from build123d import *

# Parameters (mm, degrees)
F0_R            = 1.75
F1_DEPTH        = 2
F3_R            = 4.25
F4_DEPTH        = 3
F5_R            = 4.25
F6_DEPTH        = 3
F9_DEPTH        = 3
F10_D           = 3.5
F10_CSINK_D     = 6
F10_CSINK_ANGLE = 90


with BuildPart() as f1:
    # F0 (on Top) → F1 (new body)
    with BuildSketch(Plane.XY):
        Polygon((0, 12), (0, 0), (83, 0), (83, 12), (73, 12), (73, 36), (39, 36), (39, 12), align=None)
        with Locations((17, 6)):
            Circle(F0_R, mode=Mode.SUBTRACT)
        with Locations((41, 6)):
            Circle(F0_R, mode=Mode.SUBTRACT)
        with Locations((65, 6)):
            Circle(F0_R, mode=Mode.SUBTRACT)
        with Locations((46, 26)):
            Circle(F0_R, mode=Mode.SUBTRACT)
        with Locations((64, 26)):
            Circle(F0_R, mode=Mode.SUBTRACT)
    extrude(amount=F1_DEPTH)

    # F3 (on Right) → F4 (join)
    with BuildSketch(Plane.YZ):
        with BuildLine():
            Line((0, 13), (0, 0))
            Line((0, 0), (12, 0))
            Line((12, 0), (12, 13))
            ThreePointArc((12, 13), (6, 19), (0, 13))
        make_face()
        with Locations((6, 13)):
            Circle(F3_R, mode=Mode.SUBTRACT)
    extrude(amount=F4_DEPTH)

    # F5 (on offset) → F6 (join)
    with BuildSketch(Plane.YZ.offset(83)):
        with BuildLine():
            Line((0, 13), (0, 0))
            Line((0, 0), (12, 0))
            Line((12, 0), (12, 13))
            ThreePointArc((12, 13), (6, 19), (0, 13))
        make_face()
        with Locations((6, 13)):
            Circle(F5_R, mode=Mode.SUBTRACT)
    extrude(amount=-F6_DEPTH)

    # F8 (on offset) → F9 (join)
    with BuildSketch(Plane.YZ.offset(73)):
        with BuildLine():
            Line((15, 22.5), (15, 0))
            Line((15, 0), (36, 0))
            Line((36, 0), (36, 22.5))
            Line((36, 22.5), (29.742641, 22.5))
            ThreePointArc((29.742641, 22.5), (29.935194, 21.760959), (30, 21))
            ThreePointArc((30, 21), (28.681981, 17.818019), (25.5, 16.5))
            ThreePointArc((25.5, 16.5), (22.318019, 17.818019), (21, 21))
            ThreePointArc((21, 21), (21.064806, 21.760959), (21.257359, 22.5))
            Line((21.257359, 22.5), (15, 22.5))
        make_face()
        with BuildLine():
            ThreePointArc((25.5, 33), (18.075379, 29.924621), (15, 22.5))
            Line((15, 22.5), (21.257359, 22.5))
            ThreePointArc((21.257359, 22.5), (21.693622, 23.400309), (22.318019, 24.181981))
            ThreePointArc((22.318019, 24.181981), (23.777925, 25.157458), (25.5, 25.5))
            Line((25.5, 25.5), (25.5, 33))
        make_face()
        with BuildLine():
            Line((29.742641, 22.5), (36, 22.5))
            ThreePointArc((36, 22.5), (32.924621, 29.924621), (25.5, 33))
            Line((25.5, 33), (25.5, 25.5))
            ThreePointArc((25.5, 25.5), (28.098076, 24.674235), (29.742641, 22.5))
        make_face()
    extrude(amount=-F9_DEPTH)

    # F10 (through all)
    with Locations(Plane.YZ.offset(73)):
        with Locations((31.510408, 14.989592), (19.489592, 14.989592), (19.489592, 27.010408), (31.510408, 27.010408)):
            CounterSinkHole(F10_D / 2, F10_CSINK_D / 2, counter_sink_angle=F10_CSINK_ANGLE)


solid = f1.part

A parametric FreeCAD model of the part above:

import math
import FreeCAD as App
import Part
import Sketcher

V = App.Vector
Q = App.Units.Quantity

doc = App.newDocument("Part")
body = doc.addObject("PartDesign::Body", "Body")

sketch1 = body.newObject("Sketcher::SketchObject", "Sketch")
sketch1.AttachmentSupport = (doc.getObject("XY_Plane"), [""])
sketch1.MapMode = "FlatFace"
sketch1.addGeometry(Part.LineSegment(V(0, 12, 0), V(0, 0, 0)), False)
sketch1.addGeometry(Part.LineSegment(V(0, 0, 0), V(83, 0, 0)), False)
sketch1.addGeometry(Part.LineSegment(V(83, 0, 0), V(83, 12, 0)), False)
sketch1.addGeometry(Part.LineSegment(V(83, 12, 0), V(73, 12, 0)), False)
sketch1.addGeometry(Part.LineSegment(V(73, 12, 0), V(73, 36, 0)), False)
sketch1.addGeometry(Part.LineSegment(V(73, 36, 0), V(39, 36, 0)), False)
sketch1.addGeometry(Part.LineSegment(V(39, 36, 0), V(39, 12, 0)), False)
sketch1.addGeometry(Part.LineSegment(V(39, 12, 0), V(0, 12, 0)), False)
sketch1.addGeometry(Part.Circle(V(17, 6, 0), V(0, 0, 1), 1.8), False)
sketch1.addGeometry(Part.Circle(V(41, 6, 0), V(0, 0, 1), 1.8), False)
sketch1.addGeometry(Part.Circle(V(65, 6, 0), V(0, 0, 1), 1.8), False)
sketch1.addGeometry(Part.Circle(V(46, 26, 0), V(0, 0, 1), 1.8), False)
sketch1.addGeometry(Part.Circle(V(64, 26, 0), V(0, 0, 1), 1.8), False)
sketch1.addConstraint(Sketcher.Constraint("Coincident", 0, 2, 1, 1))
sketch1.addConstraint(Sketcher.Constraint("Coincident", 1, 2, 2, 1))
sketch1.addConstraint(Sketcher.Constraint("Coincident", 2, 2, 3, 1))
sketch1.addConstraint(Sketcher.Constraint("Coincident", 3, 2, 4, 1))
sketch1.addConstraint(Sketcher.Constraint("Coincident", 4, 2, 5, 1))
sketch1.addConstraint(Sketcher.Constraint("Coincident", 5, 2, 6, 1))
sketch1.addConstraint(Sketcher.Constraint("Coincident", 6, 2, 7, 1))
sketch1.addConstraint(Sketcher.Constraint("Coincident", 7, 2, 0, 1))
sketch1.addConstraint(Sketcher.Constraint("Vertical", 0))
sketch1.addConstraint(Sketcher.Constraint("Horizontal", 1))
sketch1.addConstraint(Sketcher.Constraint("Vertical", 2))
sketch1.addConstraint(Sketcher.Constraint("Horizontal", 3))
sketch1.addConstraint(Sketcher.Constraint("Vertical", 4))
sketch1.addConstraint(Sketcher.Constraint("Horizontal", 5))
sketch1.addConstraint(Sketcher.Constraint("Vertical", 6))
sketch1.addConstraint(Sketcher.Constraint("Horizontal", 7))
sketch1.addConstraint(Sketcher.Constraint("Coincident", 0, 2, -1, 1))
sketch1.addConstraint(Sketcher.Constraint("Equal", 8, 9))
sketch1.addConstraint(Sketcher.Constraint("Equal", 9, 10))
sketch1.addConstraint(Sketcher.Constraint("Equal", 10, 11))
sketch1.addConstraint(Sketcher.Constraint("Equal", 11, 12))
sketch1.addConstraint(Sketcher.Constraint("Horizontal", 8, 3, 9, 3))
sketch1.addConstraint(Sketcher.Constraint("Horizontal", 9, 3, 10, 3))
sketch1.addConstraint(Sketcher.Constraint("Horizontal", 11, 3, 12, 3))
sketch1.addConstraint(Sketcher.Constraint("Horizontal", 3, 2, 6, 2))
sketch1.addConstraint(Sketcher.Constraint("Diameter", 8, Q("3.5 mm")))
sketch1.addConstraint(Sketcher.Constraint("DistanceX", 1, 1, 1, 2, Q("83 mm")))
sketch1.addConstraint(Sketcher.Constraint("DistanceX", 3, 2, 3, 1, Q("10 mm")))
sketch1.addConstraint(Sketcher.Constraint("DistanceX", 5, 2, 5, 1, Q("34 mm")))
sketch1.addConstraint(Sketcher.Constraint("DistanceY", 0, 2, 0, 1, Q("12 mm")))
sketch1.addConstraint(Sketcher.Constraint("DistanceY", 4, 1, 4, 2, Q("24 mm")))
sketch1.addConstraint(Sketcher.Constraint("DistanceX", -1, 1, 8, 3, Q("17 mm")))
sketch1.addConstraint(Sketcher.Constraint("DistanceY", -1, 1, 8, 3, Q("6 mm")))
sketch1.addConstraint(Sketcher.Constraint("DistanceX", -1, 1, 9, 3, Q("41 mm")))
sketch1.addConstraint(Sketcher.Constraint("DistanceX", -1, 1, 10, 3, Q("65 mm")))
sketch1.addConstraint(Sketcher.Constraint("DistanceX", -1, 1, 11, 3, Q("46 mm")))
sketch1.addConstraint(Sketcher.Constraint("DistanceY", -1, 1, 11, 3, Q("26 mm")))
sketch1.addConstraint(Sketcher.Constraint("DistanceX", -1, 1, 12, 3, Q("64 mm")))
pad1 = body.newObject("PartDesign::Pad", "Pad")
pad1.Profile = sketch1
pad1.Length = 2

sketch2 = body.newObject("Sketcher::SketchObject", "Sketch001")
sketch2.AttachmentSupport = (doc.getObject("YZ_Plane"), [""])
sketch2.MapMode = "FlatFace"
sketch2.addGeometry(Part.LineSegment(V(0, 13, 0), V(0, 0, 0)), False)
sketch2.addGeometry(Part.LineSegment(V(0, 0, 0), V(12, 0, 0)), False)
sketch2.addGeometry(Part.LineSegment(V(12, 0, 0), V(12, 13, 0)), False)
sketch2.addGeometry(Part.ArcOfCircle(Part.Circle(V(6, 13, 0), V(0, 0, 1), 6), math.radians(0), math.radians(180)), False)
sketch2.addGeometry(Part.Circle(V(6, 13, 0), V(0, 0, 1), 4.2), False)
sketch2.addConstraint(Sketcher.Constraint("Coincident", 0, 2, 1, 1))
sketch2.addConstraint(Sketcher.Constraint("Coincident", 1, 2, 2, 1))
sketch2.addConstraint(Sketcher.Constraint("Tangent", 2, 2, 3, 1))
sketch2.addConstraint(Sketcher.Constraint("Tangent", 3, 2, 0, 1))
sketch2.addConstraint(Sketcher.Constraint("Vertical", 0))
sketch2.addConstraint(Sketcher.Constraint("Horizontal", 1))
sketch2.addConstraint(Sketcher.Constraint("Vertical", 2))
sketch2.addConstraint(Sketcher.Constraint("Coincident", 0, 2, -1, 1))
sketch2.addConstraint(Sketcher.Constraint("Coincident", 4, 3, 3, 3))
sketch2.addConstraint(Sketcher.Constraint("Radius", 3, Q("6 mm")))
sketch2.addConstraint(Sketcher.Constraint("Diameter", 4, Q("8.5 mm")))
sketch2.addConstraint(Sketcher.Constraint("DistanceY", 0, 2, 0, 1, Q("13 mm")))
pad2 = body.newObject("PartDesign::Pad", "Pad001")
pad2.Profile = sketch2
pad2.Length = 3

sketch3 = body.newObject("Sketcher::SketchObject", "Sketch002")
sketch3.AttachmentSupport = (doc.getObject("YZ_Plane"), [""])
sketch3.MapMode = "FlatFace"
sketch3.AttachmentOffset = App.Placement(V(0, 0, 83), App.Rotation())
sketch3.addGeometry(Part.LineSegment(V(0, 13, 0), V(0, 0, 0)), False)
sketch3.addGeometry(Part.LineSegment(V(0, 0, 0), V(12, 0, 0)), False)
sketch3.addGeometry(Part.LineSegment(V(12, 0, 0), V(12, 13, 0)), False)
sketch3.addGeometry(Part.ArcOfCircle(Part.Circle(V(6, 13, 0), V(0, 0, 1), 6), math.radians(0), math.radians(180)), False)
sketch3.addGeometry(Part.Circle(V(6, 13, 0), V(0, 0, 1), 4.2), False)
sketch3.addConstraint(Sketcher.Constraint("Coincident", 0, 2, 1, 1))
sketch3.addConstraint(Sketcher.Constraint("Coincident", 1, 2, 2, 1))
sketch3.addConstraint(Sketcher.Constraint("Tangent", 2, 2, 3, 1))
sketch3.addConstraint(Sketcher.Constraint("Tangent", 3, 2, 0, 1))
sketch3.addConstraint(Sketcher.Constraint("Vertical", 0))
sketch3.addConstraint(Sketcher.Constraint("Horizontal", 1))
sketch3.addConstraint(Sketcher.Constraint("Vertical", 2))
sketch3.addConstraint(Sketcher.Constraint("Coincident", 0, 2, -1, 1))
sketch3.addConstraint(Sketcher.Constraint("Coincident", 4, 3, 3, 3))
sketch3.addConstraint(Sketcher.Constraint("Radius", 3, Q("6 mm")))
sketch3.addConstraint(Sketcher.Constraint("Diameter", 4, Q("8.5 mm")))
sketch3.addConstraint(Sketcher.Constraint("DistanceY", 0, 2, 0, 1, Q("13 mm")))
pad3 = body.newObject("PartDesign::Pad", "Pad002")
pad3.Profile = sketch3
pad3.Length = 3
pad3.Reversed = True

sketch4 = body.newObject("Sketcher::SketchObject", "Sketch003")
sketch4.AttachmentSupport = (doc.getObject("YZ_Plane"), [""])
sketch4.MapMode = "FlatFace"
sketch4.AttachmentOffset = App.Placement(V(0, 0, 73), App.Rotation())
sketch4.addGeometry(Part.LineSegment(V(15, 22.5, 0), V(15, 0, 0)), False)
sketch4.addGeometry(Part.LineSegment(V(15, 0, 0), V(36, 0, 0)), False)
sketch4.addGeometry(Part.LineSegment(V(36, 0, 0), V(36, 22.5, 0)), False)
sketch4.addGeometry(Part.ArcOfCircle(Part.Circle(V(25.499999, 22.499999, 0), V(0, 0, 1), 10.500001), math.radians(0.000004), math.radians(89.999996)), False)
sketch4.addGeometry(Part.ArcOfCircle(Part.Circle(V(25.500001, 22.499999, 0), V(0, 0, 1), 10.500001), math.radians(90.000004), math.radians(179.999996)), False)
sketch4.addGeometry(Part.ArcOfCircle(Part.Circle(V(25.500023, 21.000005, 0), V(0, 0, 1), 4.499977), math.radians(-0.000062), math.radians(19.47126)), False)
sketch4.addGeometry(Part.ArcOfCircle(Part.Circle(V(25.500002, 20.999998, 0), V(0, 0, 1), 4.499998), math.radians(-90.000021), math.radians(0.000021)), False)
sketch4.addGeometry(Part.ArcOfCircle(Part.Circle(V(25.499998, 20.999998, 0), V(0, 0, 1), 4.499998), math.radians(179.999979), math.radians(270.000021)), False)
sketch4.addGeometry(Part.ArcOfCircle(Part.Circle(V(25.499977, 21.000005, 0), V(0, 0, 1), 4.499977), math.radians(160.52874), math.radians(180.000062)), False)
sketch4.addGeometry(Part.ArcOfCircle(Part.Circle(V(25.50003, 20.999982, 0), V(0, 0, 1), 4.500034), math.radians(135.000108), math.radians(160.528695)), False)
sketch4.addGeometry(Part.ArcOfCircle(Part.Circle(V(25.500001, 20.999995, 0), V(0, 0, 1), 4.500005), math.radians(90.000016), math.radians(134.999963)), False)
sketch4.addGeometry(Part.ArcOfCircle(Part.Circle(V(25.5, 21, 0), V(0, 0, 1), 4.5), math.radians(19.47122), math.radians(90.000004)), False)
sketch4.addConstraint(Sketcher.Constraint("Coincident", 0, 2, 1, 1))
sketch4.addConstraint(Sketcher.Constraint("Coincident", 1, 2, 2, 1))
sketch4.addConstraint(Sketcher.Constraint("Coincident", 2, 2, 3, 1))
sketch4.addConstraint(Sketcher.Constraint("Coincident", 3, 2, 4, 1))
sketch4.addConstraint(Sketcher.Constraint("Coincident", 4, 2, 0, 1))
sketch4.addConstraint(Sketcher.Constraint("Coincident", 5, 1, 6, 2))
sketch4.addConstraint(Sketcher.Constraint("Coincident", 6, 1, 7, 2))
sketch4.addConstraint(Sketcher.Constraint("Coincident", 7, 1, 8, 2))
sketch4.addConstraint(Sketcher.Constraint("Coincident", 8, 1, 9, 2))
sketch4.addConstraint(Sketcher.Constraint("Coincident", 9, 1, 10, 2))
sketch4.addConstraint(Sketcher.Constraint("Coincident", 10, 1, 11, 2))
sketch4.addConstraint(Sketcher.Constraint("Coincident", 11, 1, 5, 2))
sketch4.addConstraint(Sketcher.Constraint("Vertical", 0))
sketch4.addConstraint(Sketcher.Constraint("Horizontal", 1))
sketch4.addConstraint(Sketcher.Constraint("Vertical", 2))
sketch4.addConstraint(Sketcher.Constraint("Coincident", 4, 3, 3, 3))
sketch4.addConstraint(Sketcher.Constraint("Coincident", 7, 3, 6, 3))
sketch4.addConstraint(Sketcher.Constraint("Coincident", 10, 3, 6, 3))
sketch4.addConstraint(Sketcher.Constraint("Coincident", 11, 3, 6, 3))
sketch4.addConstraint(Sketcher.Constraint("PointOnObject", 0, 2, -1))
sketch4.addConstraint(Sketcher.Constraint("Radius", 3, Q("10.500001 mm")))
sketch4.addConstraint(Sketcher.Constraint("Radius", 6, Q("4.499998 mm")))
sketch4.addConstraint(Sketcher.Constraint("Radius", 11, Q("4.5 mm")))
sketch4.addConstraint(Sketcher.Constraint("DistanceY", 0, 2, 0, 1, Q("22.5 mm")))
sketch4.addConstraint(Sketcher.Constraint("DistanceY", 2, 1, 2, 2, Q("22.5 mm")))
sketch4.addConstraint(Sketcher.Constraint("DistanceY", -1, 1, 6, 3, Q("20.999998 mm")))
sketch4.addConstraint(Sketcher.Constraint("DistanceX", -1, 1, 0, 2, Q("15 mm")))
sketch4.addConstraint(Sketcher.Constraint("DistanceY", -1, 1, 3, 2, Q("33 mm")))
sketch4.addConstraint(Sketcher.Constraint("DistanceX", -1, 1, 5, 1, Q("30 mm")))
sketch4.addConstraint(Sketcher.Constraint("DistanceY", -1, 1, 5, 1, Q("21 mm")))
sketch4.addConstraint(Sketcher.Constraint("DistanceY", -1, 1, 7, 1, Q("21 mm")))
sketch4.addConstraint(Sketcher.Constraint("DistanceX", -1, 1, 3, 2, Q("25.5 mm")))
sketch4.addConstraint(Sketcher.Constraint("DistanceX", -1, 1, 6, 1, Q("25.5 mm")))
sketch4.addConstraint(Sketcher.Constraint("DistanceY", -1, 1, 8, 1, Q("22.5 mm")))
sketch4.addConstraint(Sketcher.Constraint("DistanceX", -1, 1, 10, 1, Q("25.5 mm")))
sketch4.addConstraint(Sketcher.Constraint("DistanceY", -1, 1, 11, 1, Q("22.5 mm")))
sketch4.addConstraint(Sketcher.Constraint("Radius", 5, Q("4.499977 mm")))
sketch4.addConstraint(Sketcher.Constraint("Radius", 8, Q("4.499977 mm")))
sketch4.addConstraint(Sketcher.Constraint("Radius", 9, Q("4.500034 mm")))
sketch4.addConstraint(Sketcher.Constraint("DistanceX", -1, 1, 9, 3, Q("25.50003 mm")))
sketch4.addConstraint(Sketcher.Constraint("DistanceX", -1, 1, 9, 1, Q("22.318019 mm")))
pad4 = body.newObject("PartDesign::Pad", "Pad003")
pad4.Profile = sketch4
pad4.Length = 3
pad4.Reversed = True

sketch5 = body.newObject("Sketcher::SketchObject", "Sketch004")
sketch5.AttachmentSupport = (doc.getObject("YZ_Plane"), [""])
sketch5.MapMode = "FlatFace"
sketch5.AttachmentOffset = App.Placement(V(0, 0, 73), App.Rotation())
sketch5.addGeometry(Part.Circle(V(31.5, 15, 0), V(0, 0, 1), 1.8), False)
sketch5.addGeometry(Part.Circle(V(19.5, 15, 0), V(0, 0, 1), 1.8), False)
sketch5.addGeometry(Part.Circle(V(19.5, 27, 0), V(0, 0, 1), 1.8), False)
sketch5.addGeometry(Part.Circle(V(31.5, 27, 0), V(0, 0, 1), 1.8), False)
sketch5.addConstraint(Sketcher.Constraint("Equal", 0, 1))
sketch5.addConstraint(Sketcher.Constraint("Equal", 1, 2))
sketch5.addConstraint(Sketcher.Constraint("Equal", 2, 3))
sketch5.addConstraint(Sketcher.Constraint("Horizontal", 0, 3, 1, 3))
sketch5.addConstraint(Sketcher.Constraint("Horizontal", 2, 3, 3, 3))
sketch5.addConstraint(Sketcher.Constraint("Vertical", 1, 3, 2, 3))
sketch5.addConstraint(Sketcher.Constraint("Vertical", 0, 3, 3, 3))
sketch5.addConstraint(Sketcher.Constraint("Diameter", 0, Q("3.5 mm")))
sketch5.addConstraint(Sketcher.Constraint("DistanceX", -1, 1, 0, 3, Q("31.510408 mm")))
sketch5.addConstraint(Sketcher.Constraint("DistanceX", -1, 1, 1, 3, Q("19.489592 mm")))
sketch5.addConstraint(Sketcher.Constraint("DistanceY", -1, 1, 2, 3, Q("27.010408 mm")))
sketch5.addConstraint(Sketcher.Constraint("DistanceY", -1, 1, 0, 3, Q("14.989592 mm")))
doc.recompute()
hole = body.newObject("PartDesign::Hole", "Hole")
hole.Profile = sketch5
hole.ThreadType = "None"
hole.Diameter = 3.5
hole.DepthType = "ThroughAll"
hole.HoleCutType = "Countersink"
hole.HoleCutDiameter = 6
hole.HoleCutCountersinkAngle = 90

doc.recompute()
